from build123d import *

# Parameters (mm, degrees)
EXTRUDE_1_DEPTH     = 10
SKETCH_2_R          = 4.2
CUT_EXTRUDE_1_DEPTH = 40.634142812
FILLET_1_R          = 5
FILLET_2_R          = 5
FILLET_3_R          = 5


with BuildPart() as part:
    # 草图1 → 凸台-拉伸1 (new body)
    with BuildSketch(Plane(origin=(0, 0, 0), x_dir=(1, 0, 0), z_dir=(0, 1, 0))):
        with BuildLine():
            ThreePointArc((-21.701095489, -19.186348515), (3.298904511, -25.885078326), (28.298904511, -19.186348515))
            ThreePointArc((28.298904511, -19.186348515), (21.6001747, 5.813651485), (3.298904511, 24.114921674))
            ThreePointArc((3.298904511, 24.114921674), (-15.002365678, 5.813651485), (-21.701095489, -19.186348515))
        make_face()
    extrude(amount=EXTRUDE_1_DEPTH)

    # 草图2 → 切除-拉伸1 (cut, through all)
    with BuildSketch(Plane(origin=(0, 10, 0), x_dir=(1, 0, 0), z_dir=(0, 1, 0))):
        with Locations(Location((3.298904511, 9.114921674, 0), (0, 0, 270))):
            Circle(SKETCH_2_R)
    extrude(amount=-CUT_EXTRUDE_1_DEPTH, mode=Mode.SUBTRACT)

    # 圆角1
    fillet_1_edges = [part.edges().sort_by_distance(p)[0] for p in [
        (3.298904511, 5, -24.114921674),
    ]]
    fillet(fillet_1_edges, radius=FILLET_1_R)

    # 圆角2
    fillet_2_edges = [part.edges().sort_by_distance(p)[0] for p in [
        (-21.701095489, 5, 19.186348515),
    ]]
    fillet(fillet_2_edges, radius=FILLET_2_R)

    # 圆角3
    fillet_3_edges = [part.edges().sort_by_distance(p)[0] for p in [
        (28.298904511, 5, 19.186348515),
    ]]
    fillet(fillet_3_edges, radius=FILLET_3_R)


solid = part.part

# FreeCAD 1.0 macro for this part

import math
import FreeCAD as App
import Part
import Sketcher

V = App.Vector


def edges_at(feature, points):
    """Names of the edges that pass closest to the given points."""
    edges = feature.Shape.Edges
    near = lambda p: min(range(len(edges)), key=lambda i: edges[i].distToShape(Part.Vertex(*p))[0])
    return sorted({f"Edge{near(p) + 1}" for p in points})

doc = App.newDocument("Part")
body = doc.addObject("PartDesign::Body", "Body")

sketch1 = body.newObject("Sketcher::SketchObject", "Sketch")
sketch1.AttachmentSupport = (doc.getObject("XZ_Plane"), [""])
sketch1.MapMode = "FlatFace"
sketch1.addGeometry([
    Part.ArcOfCircle(Part.Circle(V(3.298905, -24.114922, 0), V(0, 0, 1), 50), math.radians(60), math.radians(120)),
    Part.ArcOfCircle(Part.Circle(V(-21.701095, 19.186349, 0), V(0, 0, 1), 50), math.radians(-60), math.radians(0)),
    Part.ArcOfCircle(Part.Circle(V(28.298905, 19.186349, 0), V(0, 0, 1), 50), math.radians(-180), math.radians(-120)),
], False)
sketch1.addConstraint([
    Sketcher.Constraint("Coincident", 0, 1, 1, 2),
    Sketcher.Constraint("Coincident", 1, 1, 2, 2),
    Sketcher.Constraint("Coincident", 2, 1, 0, 2),
    Sketcher.Constraint("Coincident", 0, 1, 2, 3),
    Sketcher.Constraint("Coincident", 1, 1, 0, 3),
    Sketcher.Constraint("Equal", 0, 1),
    Sketcher.Constraint("Horizontal", 1, 3, 2, 3),
    Sketcher.Constraint("Radius", 0, 50.0),
    Sketcher.Constraint("DistanceY", 0, 3, -1, 1, 24.114922),
    Sketcher.Constraint("DistanceX", -1, 1, 0, 3, 3.298905),
])
pad1 = body.newObject("PartDesign::Pad", "Pad")
pad1.Profile = sketch1
pad1.Length = 10
pad1.Reversed = True

sketch2 = body.newObject("Sketcher::SketchObject", "Sketch001")
sketch2.AttachmentSupport = (doc.getObject("XZ_Plane"), [""])
sketch2.MapMode = "FlatFace"
sketch2.AttachmentOffset = App.Placement(V(0, 0, -10), App.Rotation())
sketch2.addGeometry(Part.Circle(V(3.298905, -9.114922, 0), V(0, 0, 1), 4.2), False)
sketch2.addConstraint([
    Sketcher.Constraint("Diameter", 0, 8.4),
    Sketcher.Constraint("DistanceY", 0, 3, -1, 1, 9.114922),
    Sketcher.Constraint("DistanceX", -1, 1, 0, 3, 3.298905),
])
pocket1 = body.newObject("PartDesign::Pocket", "Pocket")
pocket1.Profile = sketch2
pocket1.Type = "ThroughAll"
pocket1.Reversed = True
doc.recompute()

fillet = body.newObject("PartDesign::Fillet", "Fillet")
fillet.Base = (pocket1, edges_at(pocket1, [(3.299, 5, -24.115)]))
fillet.Radius = 5
doc.recompute()

fillet2 = body.newObject("PartDesign::Fillet", "Fillet001")
fillet2.Base = (fillet, edges_at(fillet, [(-21.701, 5, 19.186)]))
fillet2.Radius = 5
doc.recompute()

fillet3 = body.newObject("PartDesign::Fillet", "Fillet002")
fillet3.Base = (fillet2, edges_at(fillet2, [(28.299, 5, 19.186)]))
fillet3.Radius = 5

doc.recompute()
